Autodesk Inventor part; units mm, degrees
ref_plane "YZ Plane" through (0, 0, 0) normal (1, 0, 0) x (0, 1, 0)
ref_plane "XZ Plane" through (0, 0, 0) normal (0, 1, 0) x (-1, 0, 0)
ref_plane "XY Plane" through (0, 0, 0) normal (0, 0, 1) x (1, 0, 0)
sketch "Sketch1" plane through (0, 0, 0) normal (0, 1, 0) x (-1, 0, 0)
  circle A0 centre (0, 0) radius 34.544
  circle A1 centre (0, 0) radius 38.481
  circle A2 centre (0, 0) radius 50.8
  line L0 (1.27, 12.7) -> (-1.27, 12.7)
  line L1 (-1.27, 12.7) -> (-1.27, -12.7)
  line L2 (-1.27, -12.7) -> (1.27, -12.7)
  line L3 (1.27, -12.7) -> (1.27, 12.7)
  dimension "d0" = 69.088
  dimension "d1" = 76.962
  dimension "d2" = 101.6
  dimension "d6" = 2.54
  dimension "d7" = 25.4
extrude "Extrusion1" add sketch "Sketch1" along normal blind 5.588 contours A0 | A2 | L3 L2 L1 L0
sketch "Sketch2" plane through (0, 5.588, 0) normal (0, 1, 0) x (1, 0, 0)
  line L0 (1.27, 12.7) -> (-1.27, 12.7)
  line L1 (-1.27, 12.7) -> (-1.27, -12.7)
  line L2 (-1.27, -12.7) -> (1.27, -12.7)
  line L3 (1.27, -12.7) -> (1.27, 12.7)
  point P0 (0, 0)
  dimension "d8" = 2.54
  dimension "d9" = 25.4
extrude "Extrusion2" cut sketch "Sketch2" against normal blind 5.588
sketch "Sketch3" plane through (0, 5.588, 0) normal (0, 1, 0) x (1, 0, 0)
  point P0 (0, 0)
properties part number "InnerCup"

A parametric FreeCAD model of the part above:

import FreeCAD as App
import Part
import Sketcher

V = App.Vector
Q = App.Units.Quantity

doc = App.newDocument("Part")
body = doc.addObject("PartDesign::Body", "Body")
body.AllowCompound = True

sketch1 = body.newObject("Sketcher::SketchObject", "Sketch")
sketch1.AttachmentSupport = (doc.getObject("XZ_Plane"), [""])
sketch1.MapMode = "FlatFace"
sketch1.addGeometry([
    Part.Circle(V(0, 0, 0), V(0, 0, 1), 35),
    Part.Circle(V(0, 0, 0), V(0, 0, 1), 51),
    Part.Circle(V(0, 0, 0), V(0, 0, 1), 38),
], False)
sketch1.addConstraint([
    Sketcher.Constraint("Coincident", 0, 3, -1, 1),
    Sketcher.Constraint("Coincident", 1, 3, -1, 1),
    Sketcher.Constraint("Coincident", 2, 3, -1, 1),
    Sketcher.Constraint("Diameter", 1, Q("4 in")),
    Sketcher.Constraint("Diameter", 0, Q("2.72 in")),
    Sketcher.Constraint("Diameter", 2, Q("3.03 in")),
])
pad1 = body.newObject("PartDesign::Pad", "Pad")
pad1.Profile = sketch1
pad1.Length = Q("0.22 in")
pad1.Reversed = True

sketch2 = body.newObject("Sketcher::SketchObject", "Sketch001")
sketch2.AttachmentSupport = (doc.getObject("XZ_Plane"), [""])
sketch2.MapMode = "FlatFace"
sketch2.AttachmentOffset = App.Placement(V(0, 0, -0.22 * 25.4), App.Rotation())
sketch2.addGeometry([
    Part.LineSegment(V(1.3, 12.7, 0), V(1.3, -12.7, 0)),
    Part.LineSegment(V(1.3, -12.7, 0), V(-1.3, -12.7, 0)),
    Part.LineSegment(V(-1.3, -12.7, 0), V(-1.3, 12.7, 0)),
    Part.LineSegment(V(-1.3, 12.7, 0), V(1.3, 12.7, 0)),
], False)
sketch2.addConstraint([
    Sketcher.Constraint("Coincident", 0, 2, 1, 1),
    Sketcher.Constraint("Coincident", 1, 2, 2, 1),
    Sketcher.Constraint("Coincident", 2, 2, 3, 1),
    Sketcher.Constraint("Coincident", 3, 2, 0, 1),
    Sketcher.Constraint("Vertical", 0),
    Sketcher.Constraint("Horizontal", 1),
    Sketcher.Constraint("Vertical", 2),
    Sketcher.Constraint("Horizontal", 3),
    Sketcher.Constraint("Symmetric", 0, 2, 2, 2, -1, 1),
    Sketcher.Constraint("DistanceY", 0, 2, 0, 1, Q("1 in")),
    Sketcher.Constraint("DistanceX", 1, 2, 1, 1, Q("0.1 in")),
])
pocket1 = body.newObject("PartDesign::Pocket", "Pocket")
pocket1.Profile = sketch2
pocket1.Length = Q("0.22 in")
pocket1.Reversed = True

doc.recompute()
